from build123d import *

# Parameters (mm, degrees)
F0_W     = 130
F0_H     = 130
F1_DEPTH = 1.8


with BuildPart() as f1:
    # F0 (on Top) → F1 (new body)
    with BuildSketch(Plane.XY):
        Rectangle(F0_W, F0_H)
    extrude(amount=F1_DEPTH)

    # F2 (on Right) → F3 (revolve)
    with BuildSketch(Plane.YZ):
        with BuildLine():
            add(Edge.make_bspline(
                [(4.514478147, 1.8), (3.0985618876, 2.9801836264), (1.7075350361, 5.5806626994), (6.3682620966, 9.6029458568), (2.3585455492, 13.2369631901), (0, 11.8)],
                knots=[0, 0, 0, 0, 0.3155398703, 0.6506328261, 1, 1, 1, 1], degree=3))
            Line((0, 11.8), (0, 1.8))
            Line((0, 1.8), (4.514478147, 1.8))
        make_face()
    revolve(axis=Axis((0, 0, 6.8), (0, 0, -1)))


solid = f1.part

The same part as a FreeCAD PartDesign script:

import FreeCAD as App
import Part
import Sketcher

V = App.Vector


def add_polygon(sketch, points):
    """Adds a closed chain of lines whose ends are joined by coincident constraints."""
    first, n = sketch.GeometryCount, len(points)
    for a, b in zip(points, points[1:] + points[:1]):
        sketch.addGeometry(Part.LineSegment(App.Vector(*a, 0), App.Vector(*b, 0)), False)
    for i in range(n):
        sketch.addConstraint(Sketcher.Constraint("Coincident", first + i, 2, first + (i + 1) % n, 1))

doc = App.newDocument("Part")
body = doc.addObject("PartDesign::Body", "Body")

# Sketch on XY plane
sketch1 = doc.addObject("Sketcher::SketchObject", "Sketch")
body.addObject(sketch1)
sketch1.AttachmentSupport = (doc.XY_Plane, [""])
sketch1.MapMode = "FlatFace"
add_polygon(sketch1, [(-65, 65), (-65, -65), (65, -65), (65, 65)])  # lines 0-3
sketch1.addConstraint([
    Sketcher.Constraint("Vertical", 0),
    Sketcher.Constraint("Horizontal", 1),
    Sketcher.Constraint("Vertical", 2),
    Sketcher.Constraint("Horizontal", 3),
    Sketcher.Constraint("Symmetric", 0, 2, 2, 2, -1, 1),
    Sketcher.Constraint("Equal", 3, 0),
    Sketcher.Constraint("DistanceX", 1, 1, 1, 2, 130.0),
])
pad1 = doc.addObject("PartDesign::Pad", "Pad")
body.addObject(pad1)
pad1.Profile = sketch1
pad1.Length = 1.8

# Sketch on YZ plane
sketch2 = doc.addObject("Sketcher::SketchObject", "Sketch001")
body.addObject(sketch2)
sketch2.AttachmentSupport = (doc.YZ_Plane, [""])
sketch2.MapMode = "FlatFace"
sketch2.addGeometry([
    Part.BSplineCurve([V(4.514478, 1.8, 0), V(3.098562, 2.980184, 0), V(1.707535, 5.580663, 0), V(6.368262, 9.602946, 0), V(2.358546, 13.236963, 0), V(0, 11.8, 0)], [4, 1, 1, 4], [0, 0.31553987, 0.650632826, 1], False, 3, [1, 1, 1, 1, 1, 1], False),
    Part.LineSegment(V(0, 11.8, 0), V(0, 1.8, 0)),
    Part.LineSegment(V(0, 1.8, 0), V(4.514478, 1.8, 0)),
], False)
sketch2.addConstraint([
    Sketcher.Constraint("Block", 0),
    Sketcher.Constraint("Coincident", 0, 2, 1, 1),
    Sketcher.Constraint("Coincident", 1, 2, 2, 1),
    Sketcher.Constraint("Coincident", 2, 2, 0, 1),
    Sketcher.Constraint("Vertical", 1),
    Sketcher.Constraint("Horizontal", 2),
])
revolution = doc.addObject("PartDesign::Revolution", "Revolution")
body.addObject(revolution)
revolution.Profile = sketch2
revolution.ReferenceAxis = (sketch2, ["V_Axis"])
revolution.Angle = 360

doc.recompute()
